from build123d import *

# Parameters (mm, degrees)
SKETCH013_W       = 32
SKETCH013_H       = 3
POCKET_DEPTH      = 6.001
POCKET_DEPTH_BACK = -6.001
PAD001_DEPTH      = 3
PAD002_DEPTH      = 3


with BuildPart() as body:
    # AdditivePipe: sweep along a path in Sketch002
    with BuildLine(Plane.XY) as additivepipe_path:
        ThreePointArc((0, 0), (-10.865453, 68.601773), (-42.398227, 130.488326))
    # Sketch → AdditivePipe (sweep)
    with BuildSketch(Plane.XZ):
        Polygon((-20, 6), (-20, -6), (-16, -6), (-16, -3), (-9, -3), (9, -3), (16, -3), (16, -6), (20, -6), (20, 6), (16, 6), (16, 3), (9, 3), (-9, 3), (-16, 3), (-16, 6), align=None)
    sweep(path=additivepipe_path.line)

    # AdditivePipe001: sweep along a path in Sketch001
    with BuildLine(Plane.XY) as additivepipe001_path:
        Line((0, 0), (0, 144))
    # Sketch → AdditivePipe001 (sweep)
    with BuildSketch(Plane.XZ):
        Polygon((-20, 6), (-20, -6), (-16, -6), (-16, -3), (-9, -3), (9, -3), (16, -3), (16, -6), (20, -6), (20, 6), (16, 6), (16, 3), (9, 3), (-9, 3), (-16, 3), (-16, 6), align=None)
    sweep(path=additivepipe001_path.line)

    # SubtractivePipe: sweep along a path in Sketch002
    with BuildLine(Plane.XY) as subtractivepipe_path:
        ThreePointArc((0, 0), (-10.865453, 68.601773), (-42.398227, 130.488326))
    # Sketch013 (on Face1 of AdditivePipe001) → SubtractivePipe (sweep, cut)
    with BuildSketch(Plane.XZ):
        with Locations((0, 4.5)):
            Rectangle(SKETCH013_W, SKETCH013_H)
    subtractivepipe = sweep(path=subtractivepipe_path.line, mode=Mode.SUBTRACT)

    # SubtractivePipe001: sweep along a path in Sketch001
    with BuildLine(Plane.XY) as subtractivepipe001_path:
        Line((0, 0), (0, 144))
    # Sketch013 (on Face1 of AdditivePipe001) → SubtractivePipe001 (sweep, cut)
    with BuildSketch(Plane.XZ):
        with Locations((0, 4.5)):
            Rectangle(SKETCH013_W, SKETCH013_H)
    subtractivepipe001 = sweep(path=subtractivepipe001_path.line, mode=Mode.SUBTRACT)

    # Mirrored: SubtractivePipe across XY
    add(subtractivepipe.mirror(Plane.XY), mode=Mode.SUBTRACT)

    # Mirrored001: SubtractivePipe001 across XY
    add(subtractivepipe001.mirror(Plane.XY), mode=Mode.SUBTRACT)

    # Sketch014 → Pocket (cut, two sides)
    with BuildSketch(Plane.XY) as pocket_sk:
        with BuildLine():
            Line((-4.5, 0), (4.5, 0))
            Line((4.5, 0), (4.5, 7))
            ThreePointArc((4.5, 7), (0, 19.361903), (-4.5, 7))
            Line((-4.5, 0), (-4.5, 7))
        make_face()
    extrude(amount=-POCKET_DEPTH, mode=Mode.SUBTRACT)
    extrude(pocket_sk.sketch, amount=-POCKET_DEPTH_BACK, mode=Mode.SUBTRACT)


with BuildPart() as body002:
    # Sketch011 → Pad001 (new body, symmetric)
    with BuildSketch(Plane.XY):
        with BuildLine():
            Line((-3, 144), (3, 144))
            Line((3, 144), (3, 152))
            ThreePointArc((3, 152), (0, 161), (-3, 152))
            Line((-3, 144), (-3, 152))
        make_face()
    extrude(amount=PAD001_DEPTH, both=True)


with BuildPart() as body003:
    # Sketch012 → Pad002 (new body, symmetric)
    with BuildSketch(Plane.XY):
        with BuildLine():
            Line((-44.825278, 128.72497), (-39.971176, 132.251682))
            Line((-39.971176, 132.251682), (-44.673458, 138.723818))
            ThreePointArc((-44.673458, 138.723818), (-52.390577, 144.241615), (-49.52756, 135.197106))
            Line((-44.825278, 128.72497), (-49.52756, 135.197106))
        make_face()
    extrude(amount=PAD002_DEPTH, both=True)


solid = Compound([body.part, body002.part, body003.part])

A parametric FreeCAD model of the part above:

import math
import FreeCAD as App
import Part
import Sketcher
from FreeCAD import Vector
Q = App.Units.Quantity

doc = App.newDocument("Part")
body = doc.addObject("PartDesign::Body", "Body")

# Sketch on XZ plane
sketch1 = doc.addObject("Sketcher::SketchObject", "Sketch")
body.addObject(sketch1)
sketch1.AttachmentSupport = (doc.XZ_Plane, [""])
sketch1.MapMode = "FlatFace"
sketch1.addGeometry([
    Part.LineSegment(Vector(-20, 6, 0), Vector(-20, -6, 0)),  # 0
    Part.LineSegment(Vector(-20, -6, 0), Vector(-16, -6, 0)),  # 1
    Part.LineSegment(Vector(-16, -6, 0), Vector(-16, -3, 0)),  # 2
    Part.LineSegment(Vector(-16, -3, 0), Vector(16, -3, 0)),  # 3
    Part.LineSegment(Vector(16, -3, 0), Vector(16, -6, 0)),  # 4
    Part.LineSegment(Vector(16, -6, 0), Vector(20, -6, 0)),  # 5
    Part.LineSegment(Vector(20, -6, 0), Vector(20, 6, 0)),  # 6
    Part.LineSegment(Vector(20, 6, 0), Vector(16, 6, 0)),  # 7
    Part.LineSegment(Vector(16, 6, 0), Vector(16, 3, 0)),  # 8
    Part.LineSegment(Vector(16, 3, 0), Vector(-16, 3, 0)),  # 9
    Part.LineSegment(Vector(-16, 3, 0), Vector(-16, 6, 0)),  # 10
    Part.LineSegment(Vector(-16, 6, 0), Vector(-20, 6, 0)),  # 11
], False)
sketch1.addConstraint([
    Sketcher.Constraint("Coincident", 0, 2, 1, 1),
    Sketcher.Constraint("Coincident", 1, 2, 2, 1),
    Sketcher.Constraint("Coincident", 2, 2, 3, 1),
    Sketcher.Constraint("Coincident", 3, 2, 4, 1),
    Sketcher.Constraint("Coincident", 4, 2, 5, 1),
    Sketcher.Constraint("Coincident", 5, 2, 6, 1),
    Sketcher.Constraint("Coincident", 6, 2, 7, 1),
    Sketcher.Constraint("Coincident", 7, 2, 8, 1),
    Sketcher.Constraint("Coincident", 8, 2, 9, 1),
    Sketcher.Constraint("Coincident", 9, 2, 10, 1),
    Sketcher.Constraint("Coincident", 10, 2, 11, 1),
    Sketcher.Constraint("Coincident", 11, 2, 0, 1),
    Sketcher.Constraint("Vertical", 0),
    Sketcher.Constraint("Horizontal", 1),
    Sketcher.Constraint("Vertical", 2),
    Sketcher.Constraint("Horizontal", 3),
    Sketcher.Constraint("Vertical", 4),
    Sketcher.Constraint("Horizontal", 5),
    Sketcher.Constraint("Vertical", 6),
    Sketcher.Constraint("Horizontal", 7),
    Sketcher.Constraint("Vertical", 8),
    Sketcher.Constraint("Horizontal", 9),
    Sketcher.Constraint("Vertical", 10),
    Sketcher.Constraint("Horizontal", 11),
    Sketcher.Constraint("Symmetric", 0, 2, 6, 2, -1, 1),
    Sketcher.Constraint("Symmetric", 2, 2, 8, 2, -1, 1),
    Sketcher.Constraint("Symmetric", 4, 2, 10, 2, -1, 1),
    Sketcher.Constraint("Symmetric", 1, 2, 4, 2, -2),
    Sketcher.Constraint("DistanceX", 1, 1, 1, 2, 4.0),
    Sketcher.Constraint("DistanceX", 3, 1, 3, 2, 32.0),
    Sketcher.Constraint("DistanceY", 0, 2, 0, 1, 12.0),
    Sketcher.Constraint("DistanceY", 2, 1, 2, 2, 3.0),
])

# Sketch on XY plane
sketch2 = doc.addObject("Sketcher::SketchObject", "Sketch001")
body.addObject(sketch2)
sketch2.AttachmentSupport = (doc.XY_Plane, [""])
sketch2.MapMode = "FlatFace"
sketch2.addGeometry(Part.ArcOfCircle(Part.Circle(Vector(-222, 0, 0), Vector(0, 0, 1), 222), math.radians(0), math.radians(36)), False)
sketch2.addConstraint([
    Sketcher.Constraint("Coincident", 0, 1, -1, 1),
    Sketcher.Constraint("Radius", 0, 221.999993),
    Sketcher.Constraint("DistanceX", 0, 2, -1, 1, 42.398227),
    Sketcher.Constraint("DistanceY", -1, 1, 0, 2, 130.488326),
])
doc.recompute()

additivepipe = doc.addObject("PartDesign::AdditivePipe", "AdditivePipe")
body.addObject(additivepipe)
additivepipe.Profile = sketch1
additivepipe.Spine = (sketch2, ["Edge1"])

# Sketch on XZ plane
sketch3 = doc.addObject("Sketcher::SketchObject", "Sketch002")
body.addObject(sketch3)
sketch3.AttachmentSupport = (doc.XZ_Plane, [""])
sketch3.MapMode = "FlatFace"
sketch3.addGeometry([
    Part.LineSegment(Vector(-20, 6, 0), Vector(-20, -6, 0)),  # 0
    Part.LineSegment(Vector(-20, -6, 0), Vector(-16, -6, 0)),  # 1
    Part.LineSegment(Vector(-16, -6, 0), Vector(-16, -3, 0)),  # 2
    Part.LineSegment(Vector(-16, -3, 0), Vector(16, -3, 0)),  # 3
    Part.LineSegment(Vector(16, -3, 0), Vector(16, -6, 0)),  # 4
    Part.LineSegment(Vector(16, -6, 0), Vector(20, -6, 0)),  # 5
    Part.LineSegment(Vector(20, -6, 0), Vector(20, 6, 0)),  # 6
    Part.LineSegment(Vector(20, 6, 0), Vector(16, 6, 0)),  # 7
    Part.LineSegment(Vector(16, 6, 0), Vector(16, 3, 0)),  # 8
    Part.LineSegment(Vector(16, 3, 0), Vector(-16, 3, 0)),  # 9
    Part.LineSegment(Vector(-16, 3, 0), Vector(-16, 6, 0)),  # 10
    Part.LineSegment(Vector(-16, 6, 0), Vector(-20, 6, 0)),  # 11
], False)
sketch3.addConstraint([
    Sketcher.Constraint("Coincident", 0, 2, 1, 1),
    Sketcher.Constraint("Coincident", 1, 2, 2, 1),
    Sketcher.Constraint("Coincident", 2, 2, 3, 1),
    Sketcher.Constraint("Coincident", 3, 2, 4, 1),
    Sketcher.Constraint("Coincident", 4, 2, 5, 1),
    Sketcher.Constraint("Coincident", 5, 2, 6, 1),
    Sketcher.Constraint("Coincident", 6, 2, 7, 1),
    Sketcher.Constraint("Coincident", 7, 2, 8, 1),
    Sketcher.Constraint("Coincident", 8, 2, 9, 1),
    Sketcher.Constraint("Coincident", 9, 2, 10, 1),
    Sketcher.Constraint("Coincident", 10, 2, 11, 1),
    Sketcher.Constraint("Coincident", 11, 2, 0, 1),
    Sketcher.Constraint("Vertical", 0),
    Sketcher.Constraint("Horizontal", 1),
    Sketcher.Constraint("Vertical", 2),
    Sketcher.Constraint("Horizontal", 3),
    Sketcher.Constraint("Vertical", 4),
    Sketcher.Constraint("Horizontal", 5),
    Sketcher.Constraint("Vertical", 6),
    Sketcher.Constraint("Horizontal", 7),
    Sketcher.Constraint("Vertical", 8),
    Sketcher.Constraint("Horizontal", 9),
    Sketcher.Constraint("Vertical", 10),
    Sketcher.Constraint("Horizontal", 11),
    Sketcher.Constraint("Symmetric", 0, 2, 6, 2, -1, 1),
    Sketcher.Constraint("Symmetric", 2, 2, 8, 2, -1, 1),
    Sketcher.Constraint("Symmetric", 4, 2, 10, 2, -1, 1),
    Sketcher.Constraint("Symmetric", 1, 2, 4, 2, -2),
    Sketcher.Constraint("DistanceX", 1, 1, 1, 2, 4.0),
    Sketcher.Constraint("DistanceX", 3, 1, 3, 2, 32.0),
    Sketcher.Constraint("DistanceY", 0, 2, 0, 1, 12.0),
    Sketcher.Constraint("DistanceY", 2, 1, 2, 2, 3.0),
])

# Sketch on XY plane
sketch4 = doc.addObject("Sketcher::SketchObject", "Sketch003")
body.addObject(sketch4)
sketch4.AttachmentSupport = (doc.XY_Plane, [""])
sketch4.MapMode = "FlatFace"
sketch4.addGeometry(Part.LineSegment(Vector(0, 0, 0), Vector(0, 144, 0)), False)
sketch4.addConstraint([
    Sketcher.Constraint("Vertical", 0),
    Sketcher.Constraint("Coincident", 0, 1, -1, 1),
    Sketcher.Constraint("DistanceY", 0, 1, 0, 2, 144.0),
])
doc.recompute()

additivepipe2 = doc.addObject("PartDesign::AdditivePipe", "AdditivePipe001")
body.addObject(additivepipe2)
additivepipe2.Profile = sketch3
additivepipe2.Spine = (sketch4, ["Edge1"])

# Sketch on XZ plane
sketch5 = doc.addObject("Sketcher::SketchObject", "Sketch004")
body.addObject(sketch5)
sketch5.AttachmentSupport = (doc.XZ_Plane, [""])
sketch5.MapMode = "FlatFace"
sketch5.addGeometry([
    Part.LineSegment(Vector(-16, 6, 0), Vector(-16, 3, 0)),
    Part.LineSegment(Vector(-16, 3, 0), Vector(16, 3, 0)),
    Part.LineSegment(Vector(16, 3, 0), Vector(16, 6, 0)),
    Part.LineSegment(Vector(16, 6, 0), Vector(-16, 6, 0)),
], False)
sketch5.addConstraint([
    Sketcher.Constraint("Coincident", 0, 2, 1, 1),
    Sketcher.Constraint("Coincident", 1, 2, 2, 1),
    Sketcher.Constraint("Coincident", 2, 2, 3, 1),
    Sketcher.Constraint("Coincident", 3, 2, 0, 1),
    Sketcher.Constraint("Vertical", 0),
    Sketcher.Constraint("Horizontal", 1),
    Sketcher.Constraint("Vertical", 2),
    Sketcher.Constraint("Horizontal", 3),
    Sketcher.Constraint("DistanceX", 1, 1, 1, 2, 32.0),
    Sketcher.Constraint("DistanceY", 0, 2, 0, 1, 3.0),
    Sketcher.Constraint("DistanceX", 0, 2, -1, 1, 16.0),
    Sketcher.Constraint("DistanceY", -1, 1, 0, 2, 3.0),
])

# Sketch on XY plane
sketch6 = doc.addObject("Sketcher::SketchObject", "Sketch005")
body.addObject(sketch6)
sketch6.AttachmentSupport = (doc.XY_Plane, [""])
sketch6.MapMode = "FlatFace"
sketch6.addGeometry(Part.ArcOfCircle(Part.Circle(Vector(-222, 0, 0), Vector(0, 0, 1), 222), math.radians(0), math.radians(36)), False)
sketch6.addConstraint([
    Sketcher.Constraint("Coincident", 0, 1, -1, 1),
    Sketcher.Constraint("Radius", 0, 221.999993),
    Sketcher.Constraint("DistanceX", 0, 2, -1, 1, 42.398227),
    Sketcher.Constraint("DistanceY", -1, 1, 0, 2, 130.488326),
])
doc.recompute()

subtractivepipe = doc.addObject("PartDesign::SubtractivePipe", "SubtractivePipe")
body.addObject(subtractivepipe)
subtractivepipe.Profile = sketch5
subtractivepipe.Spine = (sketch6, ["Edge1"])

# Sketch on XZ plane
sketch7 = doc.addObject("Sketcher::SketchObject", "Sketch006")
body.addObject(sketch7)
sketch7.AttachmentSupport = (doc.XZ_Plane, [""])
sketch7.MapMode = "FlatFace"
sketch7.addGeometry([
    Part.LineSegment(Vector(-16, 6, 0), Vector(-16, 3, 0)),
    Part.LineSegment(Vector(-16, 3, 0), Vector(16, 3, 0)),
    Part.LineSegment(Vector(16, 3, 0), Vector(16, 6, 0)),
    Part.LineSegment(Vector(16, 6, 0), Vector(-16, 6, 0)),
], False)
sketch7.addConstraint([
    Sketcher.Constraint("Coincident", 0, 2, 1, 1),
    Sketcher.Constraint("Coincident", 1, 2, 2, 1),
    Sketcher.Constraint("Coincident", 2, 2, 3, 1),
    Sketcher.Constraint("Coincident", 3, 2, 0, 1),
    Sketcher.Constraint("Vertical", 0),
    Sketcher.Constraint("Horizontal", 1),
    Sketcher.Constraint("Vertical", 2),
    Sketcher.Constraint("Horizontal", 3),
    Sketcher.Constraint("DistanceX", 1, 1, 1, 2, 32.0),
    Sketcher.Constraint("DistanceY", 0, 2, 0, 1, 3.0),
    Sketcher.Constraint("DistanceX", 0, 2, -1, 1, 16.0),
    Sketcher.Constraint("DistanceY", -1, 1, 0, 2, 3.0),
])

# Sketch on XY plane
sketch8 = doc.addObject("Sketcher::SketchObject", "Sketch007")
body.addObject(sketch8)
sketch8.AttachmentSupport = (doc.XY_Plane, [""])
sketch8.MapMode = "FlatFace"
sketch8.addGeometry(Part.LineSegment(Vector(0, 0, 0), Vector(0, 144, 0)), False)
sketch8.addConstraint([
    Sketcher.Constraint("Vertical", 0),
    Sketcher.Constraint("Coincident", 0, 1, -1, 1),
    Sketcher.Constraint("DistanceY", 0, 1, 0, 2, 144.0),
])
doc.recompute()

subtractivepipe2 = doc.addObject("PartDesign::SubtractivePipe", "SubtractivePipe001")
body.addObject(subtractivepipe2)
subtractivepipe2.Profile = sketch7
subtractivepipe2.Spine = (sketch8, ["Edge1"])
doc.recompute()

mirrored = doc.addObject("PartDesign::Mirrored", "Mirrored")
body.addObject(mirrored)
mirrored.Originals = [subtractivepipe]
mirrored.MirrorPlane = (doc.XY_Plane, [""])
body.Tip = mirrored
doc.recompute()

mirrored2 = doc.addObject("PartDesign::Mirrored", "Mirrored001")
body.addObject(mirrored2)
mirrored2.Originals = [subtractivepipe2]
mirrored2.MirrorPlane = (doc.XY_Plane, [""])
body.Tip = mirrored2

# Sketch on XY plane
sketch9 = doc.addObject("Sketcher::SketchObject", "Sketch008")
body.addObject(sketch9)
sketch9.AttachmentSupport = (doc.XY_Plane, [""])
sketch9.MapMode = "FlatFace"
sketch9.addGeometry([
    Part.LineSegment(Vector(-4, 0, 0), Vector(4, 0, 0)),
    Part.LineSegment(Vector(4, 0, 0), Vector(4, 7, 0)),
    Part.ArcOfCircle(Part.Circle(Vector(0, 12, 0), Vector(0, 0, 1), 7), math.radians(-50), math.radians(230)),
    Part.LineSegment(Vector(-4, 7, 0), Vector(-4, 0, 0)),
], False)
sketch9.addConstraint([
    Sketcher.Constraint("Coincident", 0, 2, 1, 1),
    Sketcher.Constraint("Coincident", 1, 2, 2, 1),
    Sketcher.Constraint("Coincident", 2, 2, 3, 1),
    Sketcher.Constraint("Coincident", 3, 2, 0, 1),
    Sketcher.Constraint("Horizontal", 0),
    Sketcher.Constraint("Vertical", 1),
    Sketcher.Constraint("Vertical", 3),
    Sketcher.Constraint("Symmetric", 0, 2, 3, 2, -1, 1),
    Sketcher.Constraint("PointOnObject", 2, 3, -2),
    Sketcher.Constraint("Radius", 2, 7.0),
    Sketcher.Constraint("DistanceX", 0, 1, 0, 2, 9.0),
    Sketcher.Constraint("DistanceY", 1, 1, 1, 2, 7.0),
])
pocket1 = doc.addObject("PartDesign::Pocket", "Pocket")
body.addObject(pocket1)
pocket1.Profile = sketch9
pocket1.Type = "ThroughAll"
pocket1.Midplane = True
body2 = doc.addObject("PartDesign::Body", "Body001")

# Sketch on XY plane
sketch10 = doc.addObject("Sketcher::SketchObject", "Sketch009")
body2.addObject(sketch10)
sketch10.AttachmentSupport = (doc.getObject("XY_Plane001"), [""])
sketch10.MapMode = "FlatFace"
sketch10.addGeometry([
    Part.LineSegment(Vector(-3, 144, 0), Vector(3, 144, 0)),
    Part.LineSegment(Vector(3, 144, 0), Vector(3, 152, 0)),
    Part.ArcOfCircle(Part.Circle(Vector(0, 156, 0), Vector(0, 0, 1), 5), math.radians(-53), math.radians(233)),
    Part.LineSegment(Vector(-3, 152, 0), Vector(-3, 144, 0)),
], False)
sketch10.addConstraint([
    Sketcher.Constraint("Coincident", 0, 2, 1, 1),
    Sketcher.Constraint("Coincident", 1, 2, 2, 1),
    Sketcher.Constraint("Coincident", 2, 2, 3, 1),
    Sketcher.Constraint("Coincident", 3, 2, 0, 1),
    Sketcher.Constraint("Horizontal", 0),
    Sketcher.Constraint("Vertical", 1),
    Sketcher.Constraint("Vertical", 3),
    Sketcher.Constraint("Symmetric", 1, 2, 2, 2, -2),
    Sketcher.Constraint("Radius", 2, 5.0),
    Sketcher.Constraint("DistanceX", 0, 1, 0, 2, 6.0),
    Sketcher.Constraint("DistanceY", 1, 1, 1, 2, 8.0),
    Sketcher.Constraint("DistanceY", -1, 1, 2, 3, 156.0),
])
pad1 = doc.addObject("PartDesign::Pad", "Pad")
body2.addObject(pad1)
pad1.Profile = sketch10
pad1.Length = 6
pad1.Midplane = True
body3 = doc.addObject("PartDesign::Body", "Body002")

# Sketch on XY plane
sketch11 = doc.addObject("Sketcher::SketchObject", "Sketch010")
body3.addObject(sketch11)
sketch11.AttachmentSupport = (doc.getObject("XY_Plane002"), [""])
sketch11.MapMode = "FlatFace"
sketch11.addGeometry([
    Part.LineSegment(Vector(-45, 129, 0), Vector(-40, 132, 0)),
    Part.LineSegment(Vector(-40, 132, 0), Vector(-45, 139, 0)),
    Part.ArcOfCircle(Part.Circle(Vector(-49, 140, 0), Vector(0, 0, 1), 5), math.radians(-17), math.radians(269)),
    Part.LineSegment(Vector(-50, 135, 0), Vector(-45, 129, 0)),
], False)
sketch11.addConstraint([
    Sketcher.Constraint("Coincident", 0, 2, 1, 1),
    Sketcher.Constraint("Coincident", 1, 2, 2, 1),
    Sketcher.Constraint("Coincident", 2, 2, 3, 1),
    Sketcher.Constraint("Coincident", 3, 2, 0, 1),
    Sketcher.Constraint("Perpendicular", 0, 1),
    Sketcher.Constraint("Parallel", 1, 3),
    Sketcher.Constraint("Equal", 1, 3),
    Sketcher.Constraint("Radius", 2, 5.0),
    Sketcher.Constraint("Angle", 0, Q("36.000004 deg")),
    Sketcher.Constraint("Distance", 0, 6.0),
    Sketcher.Constraint("Distance", 1, 8.0),
    Sketcher.Constraint("DistanceX", 2, 3, -1, 1, 49.45165),
    Sketcher.Constraint("DistanceY", -1, 1, 2, 3, 140.19653),
])
pad2 = doc.addObject("PartDesign::Pad", "Pad001")
body3.addObject(pad2)
pad2.Profile = sketch11
pad2.Length = 6
pad2.Midplane = True

doc.recompute()
